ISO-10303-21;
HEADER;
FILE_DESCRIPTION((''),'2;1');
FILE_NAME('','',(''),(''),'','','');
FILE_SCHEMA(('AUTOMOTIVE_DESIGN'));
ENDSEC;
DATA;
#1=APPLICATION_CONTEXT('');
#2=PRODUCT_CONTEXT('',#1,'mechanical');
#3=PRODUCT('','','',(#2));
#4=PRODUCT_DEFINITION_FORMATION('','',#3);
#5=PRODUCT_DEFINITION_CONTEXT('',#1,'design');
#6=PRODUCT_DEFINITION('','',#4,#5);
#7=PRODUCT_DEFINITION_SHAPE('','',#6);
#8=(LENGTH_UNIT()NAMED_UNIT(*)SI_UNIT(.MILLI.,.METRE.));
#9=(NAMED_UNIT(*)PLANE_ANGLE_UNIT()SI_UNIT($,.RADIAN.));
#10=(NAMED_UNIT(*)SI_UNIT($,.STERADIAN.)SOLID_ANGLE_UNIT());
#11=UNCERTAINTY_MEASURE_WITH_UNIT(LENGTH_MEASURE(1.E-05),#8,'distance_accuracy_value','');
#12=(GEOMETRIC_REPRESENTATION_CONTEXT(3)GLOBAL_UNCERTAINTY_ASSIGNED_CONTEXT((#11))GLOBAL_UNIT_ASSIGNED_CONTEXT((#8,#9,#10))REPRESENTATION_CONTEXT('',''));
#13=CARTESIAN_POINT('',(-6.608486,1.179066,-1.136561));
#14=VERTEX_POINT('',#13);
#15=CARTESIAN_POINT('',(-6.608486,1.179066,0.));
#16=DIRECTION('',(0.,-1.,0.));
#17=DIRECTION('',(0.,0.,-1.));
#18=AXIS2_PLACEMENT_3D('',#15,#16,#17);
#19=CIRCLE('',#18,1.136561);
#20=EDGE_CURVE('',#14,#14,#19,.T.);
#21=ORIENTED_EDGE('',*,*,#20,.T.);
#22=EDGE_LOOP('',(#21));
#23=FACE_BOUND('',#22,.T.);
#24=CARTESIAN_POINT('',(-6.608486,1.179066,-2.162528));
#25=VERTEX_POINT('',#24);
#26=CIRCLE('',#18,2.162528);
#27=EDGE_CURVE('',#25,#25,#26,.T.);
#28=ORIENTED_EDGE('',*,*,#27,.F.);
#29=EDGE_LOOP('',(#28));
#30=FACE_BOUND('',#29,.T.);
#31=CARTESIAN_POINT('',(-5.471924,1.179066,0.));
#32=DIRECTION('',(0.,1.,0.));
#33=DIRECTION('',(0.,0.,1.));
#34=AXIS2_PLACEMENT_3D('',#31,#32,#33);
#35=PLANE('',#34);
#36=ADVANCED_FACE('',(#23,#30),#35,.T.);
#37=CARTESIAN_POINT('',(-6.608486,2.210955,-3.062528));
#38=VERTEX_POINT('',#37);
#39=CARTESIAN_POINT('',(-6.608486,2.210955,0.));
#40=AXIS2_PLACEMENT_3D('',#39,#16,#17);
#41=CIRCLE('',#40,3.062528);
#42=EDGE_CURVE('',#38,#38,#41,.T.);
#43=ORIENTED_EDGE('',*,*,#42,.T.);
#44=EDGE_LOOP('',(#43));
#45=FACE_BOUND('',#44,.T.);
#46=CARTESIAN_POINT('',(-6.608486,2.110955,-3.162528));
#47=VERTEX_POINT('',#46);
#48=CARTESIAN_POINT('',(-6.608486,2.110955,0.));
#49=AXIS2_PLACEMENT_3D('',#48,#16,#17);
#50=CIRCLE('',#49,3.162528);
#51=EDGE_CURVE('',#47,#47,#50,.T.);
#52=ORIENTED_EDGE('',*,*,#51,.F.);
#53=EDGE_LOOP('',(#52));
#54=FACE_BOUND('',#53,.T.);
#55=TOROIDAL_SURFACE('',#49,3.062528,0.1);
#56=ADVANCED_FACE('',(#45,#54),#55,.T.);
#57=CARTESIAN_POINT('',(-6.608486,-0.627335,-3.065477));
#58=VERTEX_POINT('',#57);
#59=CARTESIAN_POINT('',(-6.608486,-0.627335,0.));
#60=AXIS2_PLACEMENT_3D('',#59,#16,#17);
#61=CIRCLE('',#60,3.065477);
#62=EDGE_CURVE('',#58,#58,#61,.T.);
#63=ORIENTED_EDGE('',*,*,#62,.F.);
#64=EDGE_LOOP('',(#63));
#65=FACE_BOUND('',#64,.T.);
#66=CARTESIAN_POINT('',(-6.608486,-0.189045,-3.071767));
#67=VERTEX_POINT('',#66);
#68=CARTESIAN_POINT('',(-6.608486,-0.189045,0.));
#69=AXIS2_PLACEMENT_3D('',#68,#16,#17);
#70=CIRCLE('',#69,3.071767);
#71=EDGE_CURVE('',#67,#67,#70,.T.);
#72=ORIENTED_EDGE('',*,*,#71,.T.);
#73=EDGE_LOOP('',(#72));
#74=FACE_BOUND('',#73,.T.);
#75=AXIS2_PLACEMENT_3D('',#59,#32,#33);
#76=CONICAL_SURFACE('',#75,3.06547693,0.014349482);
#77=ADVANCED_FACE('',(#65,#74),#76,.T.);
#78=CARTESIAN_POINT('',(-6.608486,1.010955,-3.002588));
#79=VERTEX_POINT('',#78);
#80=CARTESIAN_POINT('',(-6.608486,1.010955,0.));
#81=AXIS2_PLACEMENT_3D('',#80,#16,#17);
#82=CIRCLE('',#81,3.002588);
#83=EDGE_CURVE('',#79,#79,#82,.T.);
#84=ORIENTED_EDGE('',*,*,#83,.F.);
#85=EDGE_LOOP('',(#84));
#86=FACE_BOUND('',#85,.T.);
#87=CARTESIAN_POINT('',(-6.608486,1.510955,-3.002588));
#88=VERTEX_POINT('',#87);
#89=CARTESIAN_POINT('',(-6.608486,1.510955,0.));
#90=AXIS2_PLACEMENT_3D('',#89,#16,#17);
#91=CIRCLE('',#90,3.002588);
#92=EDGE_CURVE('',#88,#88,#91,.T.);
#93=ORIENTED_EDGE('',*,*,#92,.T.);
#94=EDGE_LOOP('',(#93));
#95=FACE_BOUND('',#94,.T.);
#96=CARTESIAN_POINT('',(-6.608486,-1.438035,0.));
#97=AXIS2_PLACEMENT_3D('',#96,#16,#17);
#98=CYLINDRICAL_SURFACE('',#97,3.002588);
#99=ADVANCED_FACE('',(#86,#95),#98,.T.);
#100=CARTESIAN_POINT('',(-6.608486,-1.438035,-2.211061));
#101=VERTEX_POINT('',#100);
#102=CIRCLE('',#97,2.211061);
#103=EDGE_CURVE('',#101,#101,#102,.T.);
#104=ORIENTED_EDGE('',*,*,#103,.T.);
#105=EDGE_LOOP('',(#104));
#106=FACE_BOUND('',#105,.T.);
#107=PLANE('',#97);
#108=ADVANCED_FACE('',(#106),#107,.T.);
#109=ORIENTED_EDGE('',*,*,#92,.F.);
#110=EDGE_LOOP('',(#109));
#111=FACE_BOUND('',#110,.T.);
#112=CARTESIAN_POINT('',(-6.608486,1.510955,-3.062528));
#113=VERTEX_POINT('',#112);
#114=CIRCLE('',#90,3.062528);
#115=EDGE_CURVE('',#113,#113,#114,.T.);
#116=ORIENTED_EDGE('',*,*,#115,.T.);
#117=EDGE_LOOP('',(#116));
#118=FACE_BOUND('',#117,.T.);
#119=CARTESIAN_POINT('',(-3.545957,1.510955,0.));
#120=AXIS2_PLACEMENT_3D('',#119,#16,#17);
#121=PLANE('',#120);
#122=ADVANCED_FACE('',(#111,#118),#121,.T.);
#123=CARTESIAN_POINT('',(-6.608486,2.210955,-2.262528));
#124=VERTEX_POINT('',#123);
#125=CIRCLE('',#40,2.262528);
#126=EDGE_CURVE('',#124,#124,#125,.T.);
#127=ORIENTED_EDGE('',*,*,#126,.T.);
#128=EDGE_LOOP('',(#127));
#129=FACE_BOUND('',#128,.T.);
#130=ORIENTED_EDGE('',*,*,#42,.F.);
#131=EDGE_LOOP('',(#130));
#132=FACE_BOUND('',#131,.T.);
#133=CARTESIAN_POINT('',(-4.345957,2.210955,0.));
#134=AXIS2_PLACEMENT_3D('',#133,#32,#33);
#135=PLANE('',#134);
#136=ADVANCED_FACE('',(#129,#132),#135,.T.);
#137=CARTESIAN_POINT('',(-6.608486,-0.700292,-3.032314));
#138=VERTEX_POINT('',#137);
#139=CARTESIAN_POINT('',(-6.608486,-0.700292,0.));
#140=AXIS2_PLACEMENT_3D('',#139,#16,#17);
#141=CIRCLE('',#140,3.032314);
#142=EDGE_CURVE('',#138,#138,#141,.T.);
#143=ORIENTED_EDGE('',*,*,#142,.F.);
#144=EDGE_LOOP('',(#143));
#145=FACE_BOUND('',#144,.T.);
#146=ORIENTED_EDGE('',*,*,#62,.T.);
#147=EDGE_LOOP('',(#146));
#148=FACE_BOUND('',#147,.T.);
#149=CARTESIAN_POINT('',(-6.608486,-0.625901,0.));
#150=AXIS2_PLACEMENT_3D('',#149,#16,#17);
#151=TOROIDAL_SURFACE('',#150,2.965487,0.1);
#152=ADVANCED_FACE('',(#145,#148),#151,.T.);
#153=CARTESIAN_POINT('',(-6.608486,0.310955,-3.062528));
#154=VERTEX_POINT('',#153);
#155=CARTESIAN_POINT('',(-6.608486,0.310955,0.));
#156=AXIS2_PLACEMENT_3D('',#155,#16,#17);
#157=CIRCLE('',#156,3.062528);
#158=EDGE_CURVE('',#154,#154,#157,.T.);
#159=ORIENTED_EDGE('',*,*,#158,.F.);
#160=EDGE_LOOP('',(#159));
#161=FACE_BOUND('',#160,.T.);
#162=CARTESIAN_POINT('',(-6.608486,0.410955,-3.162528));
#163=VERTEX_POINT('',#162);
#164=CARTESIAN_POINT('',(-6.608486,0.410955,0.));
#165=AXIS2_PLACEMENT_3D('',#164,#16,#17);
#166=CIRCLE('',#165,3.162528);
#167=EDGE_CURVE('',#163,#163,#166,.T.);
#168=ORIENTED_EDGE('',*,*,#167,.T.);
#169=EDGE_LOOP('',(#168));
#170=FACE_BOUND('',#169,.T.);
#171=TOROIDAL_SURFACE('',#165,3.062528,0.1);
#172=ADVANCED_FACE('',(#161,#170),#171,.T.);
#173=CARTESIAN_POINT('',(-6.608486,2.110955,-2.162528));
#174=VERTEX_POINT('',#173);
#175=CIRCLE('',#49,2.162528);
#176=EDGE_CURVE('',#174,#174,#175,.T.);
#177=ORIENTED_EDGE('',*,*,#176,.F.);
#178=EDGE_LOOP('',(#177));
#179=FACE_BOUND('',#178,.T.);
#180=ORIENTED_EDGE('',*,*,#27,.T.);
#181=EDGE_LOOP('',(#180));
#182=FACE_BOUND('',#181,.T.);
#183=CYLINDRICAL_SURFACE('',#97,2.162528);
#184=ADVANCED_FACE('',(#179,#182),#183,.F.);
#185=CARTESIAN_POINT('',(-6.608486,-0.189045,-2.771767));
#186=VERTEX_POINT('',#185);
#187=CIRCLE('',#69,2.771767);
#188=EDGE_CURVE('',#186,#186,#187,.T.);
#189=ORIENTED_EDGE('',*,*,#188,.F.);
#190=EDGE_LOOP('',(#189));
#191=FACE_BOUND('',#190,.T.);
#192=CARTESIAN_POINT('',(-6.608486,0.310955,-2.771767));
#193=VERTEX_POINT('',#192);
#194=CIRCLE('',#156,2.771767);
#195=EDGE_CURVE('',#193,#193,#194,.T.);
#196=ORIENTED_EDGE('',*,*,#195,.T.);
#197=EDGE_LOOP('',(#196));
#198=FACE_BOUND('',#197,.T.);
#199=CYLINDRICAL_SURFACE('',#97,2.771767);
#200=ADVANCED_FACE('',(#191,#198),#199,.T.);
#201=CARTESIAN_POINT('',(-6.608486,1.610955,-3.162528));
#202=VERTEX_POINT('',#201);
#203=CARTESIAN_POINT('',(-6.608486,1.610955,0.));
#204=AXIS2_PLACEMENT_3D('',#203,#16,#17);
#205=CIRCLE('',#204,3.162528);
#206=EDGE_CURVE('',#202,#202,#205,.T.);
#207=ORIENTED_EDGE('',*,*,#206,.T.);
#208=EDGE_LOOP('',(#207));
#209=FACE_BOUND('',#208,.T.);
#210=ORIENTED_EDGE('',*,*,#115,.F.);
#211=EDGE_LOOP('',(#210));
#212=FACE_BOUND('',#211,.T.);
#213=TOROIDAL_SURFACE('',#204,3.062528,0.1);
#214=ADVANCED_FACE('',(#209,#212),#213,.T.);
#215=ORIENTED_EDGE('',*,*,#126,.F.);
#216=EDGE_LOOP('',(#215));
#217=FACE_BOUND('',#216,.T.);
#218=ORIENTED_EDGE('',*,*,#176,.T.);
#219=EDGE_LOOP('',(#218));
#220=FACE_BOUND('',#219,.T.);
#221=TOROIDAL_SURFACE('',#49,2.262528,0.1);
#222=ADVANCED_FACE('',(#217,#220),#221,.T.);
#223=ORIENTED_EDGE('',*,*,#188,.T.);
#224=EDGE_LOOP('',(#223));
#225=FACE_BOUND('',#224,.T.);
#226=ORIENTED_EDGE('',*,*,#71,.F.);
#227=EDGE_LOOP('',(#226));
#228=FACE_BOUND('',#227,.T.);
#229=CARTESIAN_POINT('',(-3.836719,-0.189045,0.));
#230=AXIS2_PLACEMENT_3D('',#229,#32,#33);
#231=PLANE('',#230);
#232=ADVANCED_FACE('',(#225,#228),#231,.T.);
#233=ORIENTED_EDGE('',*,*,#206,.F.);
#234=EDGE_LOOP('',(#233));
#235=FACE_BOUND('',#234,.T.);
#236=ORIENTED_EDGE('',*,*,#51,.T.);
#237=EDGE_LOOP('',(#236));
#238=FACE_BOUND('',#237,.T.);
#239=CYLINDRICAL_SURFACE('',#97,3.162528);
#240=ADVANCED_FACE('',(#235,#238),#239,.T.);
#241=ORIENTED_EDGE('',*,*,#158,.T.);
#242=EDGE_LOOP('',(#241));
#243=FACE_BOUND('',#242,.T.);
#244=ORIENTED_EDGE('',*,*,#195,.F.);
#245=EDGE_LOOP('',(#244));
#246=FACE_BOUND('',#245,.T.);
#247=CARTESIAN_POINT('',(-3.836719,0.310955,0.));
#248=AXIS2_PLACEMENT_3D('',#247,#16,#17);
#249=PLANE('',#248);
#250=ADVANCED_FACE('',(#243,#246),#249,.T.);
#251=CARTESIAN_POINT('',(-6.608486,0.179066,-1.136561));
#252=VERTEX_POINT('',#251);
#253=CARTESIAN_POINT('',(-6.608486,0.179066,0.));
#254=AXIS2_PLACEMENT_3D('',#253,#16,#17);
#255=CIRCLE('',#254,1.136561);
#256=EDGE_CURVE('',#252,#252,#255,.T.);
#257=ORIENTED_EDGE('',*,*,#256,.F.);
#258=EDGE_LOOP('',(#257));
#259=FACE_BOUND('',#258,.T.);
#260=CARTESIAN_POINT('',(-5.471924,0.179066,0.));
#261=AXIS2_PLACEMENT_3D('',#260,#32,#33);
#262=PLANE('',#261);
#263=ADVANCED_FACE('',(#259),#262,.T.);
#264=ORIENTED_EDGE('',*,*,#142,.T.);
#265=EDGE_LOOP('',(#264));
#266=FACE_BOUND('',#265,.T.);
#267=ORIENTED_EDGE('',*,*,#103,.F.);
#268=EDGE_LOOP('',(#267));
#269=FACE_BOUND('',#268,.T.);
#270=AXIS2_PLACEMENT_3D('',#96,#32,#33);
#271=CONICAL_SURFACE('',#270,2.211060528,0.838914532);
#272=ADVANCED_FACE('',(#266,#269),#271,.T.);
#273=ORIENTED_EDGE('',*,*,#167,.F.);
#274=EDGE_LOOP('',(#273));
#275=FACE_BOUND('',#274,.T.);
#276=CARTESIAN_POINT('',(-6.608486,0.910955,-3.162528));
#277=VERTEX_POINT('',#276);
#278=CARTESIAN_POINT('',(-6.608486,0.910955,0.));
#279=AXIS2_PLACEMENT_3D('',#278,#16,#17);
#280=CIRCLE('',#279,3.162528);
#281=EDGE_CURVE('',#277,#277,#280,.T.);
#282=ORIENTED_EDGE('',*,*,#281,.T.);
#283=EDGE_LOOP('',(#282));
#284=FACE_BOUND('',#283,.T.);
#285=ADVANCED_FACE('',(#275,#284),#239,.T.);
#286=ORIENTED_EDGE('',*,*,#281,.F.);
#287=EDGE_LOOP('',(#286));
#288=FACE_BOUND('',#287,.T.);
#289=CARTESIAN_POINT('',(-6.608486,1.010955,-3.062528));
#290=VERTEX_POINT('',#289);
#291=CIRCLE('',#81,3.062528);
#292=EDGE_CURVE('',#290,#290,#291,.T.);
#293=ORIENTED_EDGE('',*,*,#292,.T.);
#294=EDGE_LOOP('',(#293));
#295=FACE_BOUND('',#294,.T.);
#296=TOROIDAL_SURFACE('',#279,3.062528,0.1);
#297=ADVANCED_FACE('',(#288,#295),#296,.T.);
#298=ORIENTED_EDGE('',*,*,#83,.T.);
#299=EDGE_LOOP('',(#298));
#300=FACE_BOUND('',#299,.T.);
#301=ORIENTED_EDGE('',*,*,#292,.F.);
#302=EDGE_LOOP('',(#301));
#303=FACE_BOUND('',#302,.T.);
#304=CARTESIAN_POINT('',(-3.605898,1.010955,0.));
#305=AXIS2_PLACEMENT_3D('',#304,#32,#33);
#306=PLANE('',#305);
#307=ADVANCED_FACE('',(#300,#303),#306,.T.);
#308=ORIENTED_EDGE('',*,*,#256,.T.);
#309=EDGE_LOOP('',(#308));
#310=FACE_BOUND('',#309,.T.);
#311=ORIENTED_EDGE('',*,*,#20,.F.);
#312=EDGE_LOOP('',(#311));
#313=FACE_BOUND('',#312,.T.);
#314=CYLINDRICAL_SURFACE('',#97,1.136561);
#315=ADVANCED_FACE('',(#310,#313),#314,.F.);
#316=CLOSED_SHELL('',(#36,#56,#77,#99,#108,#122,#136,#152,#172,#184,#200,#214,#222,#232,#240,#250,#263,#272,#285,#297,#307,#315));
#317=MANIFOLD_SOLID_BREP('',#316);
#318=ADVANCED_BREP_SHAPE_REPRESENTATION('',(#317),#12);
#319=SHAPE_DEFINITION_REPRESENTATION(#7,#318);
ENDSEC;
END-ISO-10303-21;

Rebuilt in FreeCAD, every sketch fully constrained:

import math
import FreeCAD as App
import Part
import Sketcher

doc = App.newDocument("Part")
body = doc.addObject("PartDesign::Body", "Body")

sketch1 = body.newObject("Sketcher::SketchObject", "Sketch")
sketch1.AttachmentSupport = (doc.getObject("XY_Plane"), [""])
sketch1.MapMode = "FlatFace"
sketch1.addGeometry(Part.LineSegment(App.Vector(-3.45, 1.61, 0), App.Vector(-3.45, 2.11, 0)), False)
sketch1.addGeometry(Part.ArcOfCircle(Part.Circle(App.Vector(-3.55, 2.11, 0), App.Vector(0, 0, 1), 0.1), math.radians(0), math.radians(90)), False)
sketch1.addGeometry(Part.LineSegment(App.Vector(-3.55, 2.21, 0), App.Vector(-4.35, 2.21, 0)), False)
sketch1.addGeometry(Part.ArcOfCircle(Part.Circle(App.Vector(-4.35, 2.11, 0), App.Vector(0, 0, 1), 0.1), math.radians(90), math.radians(180)), False)
sketch1.addGeometry(Part.LineSegment(App.Vector(-4.45, 2.11, 0), App.Vector(-4.45, 1.18, 0)), False)
sketch1.addGeometry(Part.LineSegment(App.Vector(-4.45, 1.18, 0), App.Vector(-5.47, 1.18, 0)), False)
sketch1.addGeometry(Part.LineSegment(App.Vector(-5.47, 1.18, 0), App.Vector(-5.47, 0.18, 0)), False)
sketch1.addGeometry(Part.LineSegment(App.Vector(-5.47, 0.18, 0), App.Vector(-6.61, 0.18, 0)), False)
sketch1.addGeometry(Part.LineSegment(App.Vector(-6.61, 0.18, 0), App.Vector(-6.61, -1.44, 0)), False)
sketch1.addGeometry(Part.LineSegment(App.Vector(-6.61, -1.44, 0), App.Vector(-4.4, -1.44, 0)), False)
sketch1.addGeometry(Part.LineSegment(App.Vector(-4.4, -1.44, 0), App.Vector(-3.58, -0.7, 0)), False)
sketch1.addGeometry(Part.ArcOfCircle(Part.Circle(App.Vector(-3.64, -0.63, 0), App.Vector(0, 0, 1), 0.1), math.radians(-48), math.radians(-1)), False)
sketch1.addGeometry(Part.LineSegment(App.Vector(-3.54, -0.63, 0), App.Vector(-3.54, -0.19, 0)), False)
sketch1.addGeometry(Part.LineSegment(App.Vector(-3.54, -0.19, 0), App.Vector(-3.84, -0.19, 0)), False)
sketch1.addGeometry(Part.LineSegment(App.Vector(-3.84, -0.19, 0), App.Vector(-3.84, 0.31, 0)), False)
sketch1.addGeometry(Part.LineSegment(App.Vector(-3.84, 0.31, 0), App.Vector(-3.55, 0.31, 0)), False)
sketch1.addGeometry(Part.ArcOfCircle(Part.Circle(App.Vector(-3.55, 0.41, 0), App.Vector(0, 0, 1), 0.1), math.radians(-90), math.radians(0)), False)
sketch1.addGeometry(Part.LineSegment(App.Vector(-3.45, 0.41, 0), App.Vector(-3.45, 0.91, 0)), False)
sketch1.addGeometry(Part.ArcOfCircle(Part.Circle(App.Vector(-3.55, 0.91, 0), App.Vector(0, 0, 1), 0.1), math.radians(0), math.radians(90)), False)
sketch1.addGeometry(Part.LineSegment(App.Vector(-3.55, 1.01, 0), App.Vector(-3.61, 1.01, 0)), False)
sketch1.addGeometry(Part.LineSegment(App.Vector(-3.61, 1.01, 0), App.Vector(-3.61, 1.51, 0)), False)
sketch1.addGeometry(Part.LineSegment(App.Vector(-3.61, 1.51, 0), App.Vector(-3.55, 1.51, 0)), False)
sketch1.addGeometry(Part.ArcOfCircle(Part.Circle(App.Vector(-3.55, 1.61, 0), App.Vector(0, 0, 1), 0.1), math.radians(-90), math.radians(0)), False)
sketch1.addGeometry(Part.LineSegment(App.Vector(-6.61, -1.44, 0), App.Vector(-6.61, 2.21, 0)), True)
sketch1.addConstraint(Sketcher.Constraint("Tangent", 0, 2, 1, 1))
sketch1.addConstraint(Sketcher.Constraint("Tangent", 1, 2, 2, 1))
sketch1.addConstraint(Sketcher.Constraint("Tangent", 2, 2, 3, 1))
sketch1.addConstraint(Sketcher.Constraint("Tangent", 3, 2, 4, 1))
sketch1.addConstraint(Sketcher.Constraint("Coincident", 4, 2, 5, 1))
sketch1.addConstraint(Sketcher.Constraint("Coincident", 5, 2, 6, 1))
sketch1.addConstraint(Sketcher.Constraint("Coincident", 6, 2, 7, 1))
sketch1.addConstraint(Sketcher.Constraint("Coincident", 7, 2, 8, 1))
sketch1.addConstraint(Sketcher.Constraint("Coincident", 8, 2, 9, 1))
sketch1.addConstraint(Sketcher.Constraint("Coincident", 9, 2, 10, 1))
sketch1.addConstraint(Sketcher.Constraint("Tangent", 10, 2, 11, 1))
sketch1.addConstraint(Sketcher.Constraint("Tangent", 11, 2, 12, 1))
sketch1.addConstraint(Sketcher.Constraint("Coincident", 12, 2, 13, 1))
sketch1.addConstraint(Sketcher.Constraint("Coincident", 13, 2, 14, 1))
sketch1.addConstraint(Sketcher.Constraint("Coincident", 14, 2, 15, 1))
sketch1.addConstraint(Sketcher.Constraint("Tangent", 15, 2, 16, 1))
sketch1.addConstraint(Sketcher.Constraint("Tangent", 16, 2, 17, 1))
sketch1.addConstraint(Sketcher.Constraint("Tangent", 17, 2, 18, 1))
sketch1.addConstraint(Sketcher.Constraint("Tangent", 18, 2, 19, 1))
sketch1.addConstraint(Sketcher.Constraint("Coincident", 19, 2, 20, 1))
sketch1.addConstraint(Sketcher.Constraint("Coincident", 20, 2, 21, 1))
sketch1.addConstraint(Sketcher.Constraint("Tangent", 21, 2, 22, 1))
sketch1.addConstraint(Sketcher.Constraint("Tangent", 22, 2, 0, 1))
sketch1.addConstraint(Sketcher.Constraint("Vertical", 0))
sketch1.addConstraint(Sketcher.Constraint("Horizontal", 2))
sketch1.addConstraint(Sketcher.Constraint("Vertical", 4))
sketch1.addConstraint(Sketcher.Constraint("Horizontal", 5))
sketch1.addConstraint(Sketcher.Constraint("Vertical", 6))
sketch1.addConstraint(Sketcher.Constraint("Horizontal", 7))
sketch1.addConstraint(Sketcher.Constraint("Vertical", 8))
sketch1.addConstraint(Sketcher.Constraint("Horizontal", 9))
sketch1.addConstraint(Sketcher.Constraint("Horizontal", 13))
sketch1.addConstraint(Sketcher.Constraint("Vertical", 14))
sketch1.addConstraint(Sketcher.Constraint("Horizontal", 15))
sketch1.addConstraint(Sketcher.Constraint("Vertical", 17))
sketch1.addConstraint(Sketcher.Constraint("Horizontal", 19))
sketch1.addConstraint(Sketcher.Constraint("Vertical", 20))
sketch1.addConstraint(Sketcher.Constraint("Horizontal", 21))
sketch1.addConstraint(Sketcher.Constraint("Vertical", 23))
sketch1.addConstraint(Sketcher.Constraint("Coincident", 23, 1, 8, 2))
sketch1.addConstraint(Sketcher.Constraint("Equal", 1, 3))
sketch1.addConstraint(Sketcher.Constraint("Equal", 3, 11))
sketch1.addConstraint(Sketcher.Constraint("Equal", 11, 16))
sketch1.addConstraint(Sketcher.Constraint("Equal", 16, 18))
sketch1.addConstraint(Sketcher.Constraint("Equal", 18, 22))
sketch1.addConstraint(Sketcher.Constraint("Horizontal", 2, 2, 23, 2))
sketch1.addConstraint(Sketcher.Constraint("Vertical", 1, 3, 16, 3))
sketch1.addConstraint(Sketcher.Constraint("Equal", 0, 14))
sketch1.addConstraint(Sketcher.Constraint("Equal", 14, 17))
sketch1.addConstraint(Sketcher.Constraint("Equal", 17, 20))
sketch1.addConstraint(Sketcher.Constraint("Radius", 1, 0.1))
sketch1.addConstraint(Sketcher.Constraint("DistanceY", 6, 2, 6, 1, 1.0))
sketch1.addConstraint(Sketcher.Constraint("DistanceX", 2, 2, 2, 1, 0.8))
sketch1.addConstraint(Sketcher.Constraint("DistanceX", 13, 2, 13, 1, 0.3))
sketch1.addConstraint(Sketcher.Constraint("DistanceY", 0, 1, 0, 2, 0.5))
sketch1.addConstraint(Sketcher.Constraint("DistanceY", 8, 2, 8, 1, 1.6171))
sketch1.addConstraint(Sketcher.Constraint("DistanceX", 11, 3, -1, 1, 3.642998))
sketch1.addConstraint(Sketcher.Constraint("DistanceX", 7, 2, 7, 1, 1.136561))
sketch1.addConstraint(Sketcher.Constraint("DistanceX", 9, 1, 9, 2, 2.211061))
sketch1.addConstraint(Sketcher.Constraint("DistanceX", 15, 1, 15, 2, 0.290762))
sketch1.addConstraint(Sketcher.Constraint("DistanceX", 19, 2, 19, 1, 0.05994))
sketch1.addConstraint(Sketcher.Constraint("DistanceY", 4, 2, 4, 1, 0.931889))
sketch1.addConstraint(Sketcher.Constraint("DistanceY", 11, 3, -1, 1, 0.6259))
sketch1.addConstraint(Sketcher.Constraint("DistanceY", 9, 2, 11, 2, 0.810699))
sketch1.addConstraint(Sketcher.Constraint("DistanceX", 5, 2, 5, 1, 1.025967))
sketch1.addConstraint(Sketcher.Constraint("DistanceX", 10, 2, -1, 1, 3.576171))
revolution = body.newObject("PartDesign::Revolution", "Revolution")
revolution.Profile = sketch1
revolution.ReferenceAxis = (sketch1, ["Axis0"])
revolution.Angle = 360

doc.recompute()
